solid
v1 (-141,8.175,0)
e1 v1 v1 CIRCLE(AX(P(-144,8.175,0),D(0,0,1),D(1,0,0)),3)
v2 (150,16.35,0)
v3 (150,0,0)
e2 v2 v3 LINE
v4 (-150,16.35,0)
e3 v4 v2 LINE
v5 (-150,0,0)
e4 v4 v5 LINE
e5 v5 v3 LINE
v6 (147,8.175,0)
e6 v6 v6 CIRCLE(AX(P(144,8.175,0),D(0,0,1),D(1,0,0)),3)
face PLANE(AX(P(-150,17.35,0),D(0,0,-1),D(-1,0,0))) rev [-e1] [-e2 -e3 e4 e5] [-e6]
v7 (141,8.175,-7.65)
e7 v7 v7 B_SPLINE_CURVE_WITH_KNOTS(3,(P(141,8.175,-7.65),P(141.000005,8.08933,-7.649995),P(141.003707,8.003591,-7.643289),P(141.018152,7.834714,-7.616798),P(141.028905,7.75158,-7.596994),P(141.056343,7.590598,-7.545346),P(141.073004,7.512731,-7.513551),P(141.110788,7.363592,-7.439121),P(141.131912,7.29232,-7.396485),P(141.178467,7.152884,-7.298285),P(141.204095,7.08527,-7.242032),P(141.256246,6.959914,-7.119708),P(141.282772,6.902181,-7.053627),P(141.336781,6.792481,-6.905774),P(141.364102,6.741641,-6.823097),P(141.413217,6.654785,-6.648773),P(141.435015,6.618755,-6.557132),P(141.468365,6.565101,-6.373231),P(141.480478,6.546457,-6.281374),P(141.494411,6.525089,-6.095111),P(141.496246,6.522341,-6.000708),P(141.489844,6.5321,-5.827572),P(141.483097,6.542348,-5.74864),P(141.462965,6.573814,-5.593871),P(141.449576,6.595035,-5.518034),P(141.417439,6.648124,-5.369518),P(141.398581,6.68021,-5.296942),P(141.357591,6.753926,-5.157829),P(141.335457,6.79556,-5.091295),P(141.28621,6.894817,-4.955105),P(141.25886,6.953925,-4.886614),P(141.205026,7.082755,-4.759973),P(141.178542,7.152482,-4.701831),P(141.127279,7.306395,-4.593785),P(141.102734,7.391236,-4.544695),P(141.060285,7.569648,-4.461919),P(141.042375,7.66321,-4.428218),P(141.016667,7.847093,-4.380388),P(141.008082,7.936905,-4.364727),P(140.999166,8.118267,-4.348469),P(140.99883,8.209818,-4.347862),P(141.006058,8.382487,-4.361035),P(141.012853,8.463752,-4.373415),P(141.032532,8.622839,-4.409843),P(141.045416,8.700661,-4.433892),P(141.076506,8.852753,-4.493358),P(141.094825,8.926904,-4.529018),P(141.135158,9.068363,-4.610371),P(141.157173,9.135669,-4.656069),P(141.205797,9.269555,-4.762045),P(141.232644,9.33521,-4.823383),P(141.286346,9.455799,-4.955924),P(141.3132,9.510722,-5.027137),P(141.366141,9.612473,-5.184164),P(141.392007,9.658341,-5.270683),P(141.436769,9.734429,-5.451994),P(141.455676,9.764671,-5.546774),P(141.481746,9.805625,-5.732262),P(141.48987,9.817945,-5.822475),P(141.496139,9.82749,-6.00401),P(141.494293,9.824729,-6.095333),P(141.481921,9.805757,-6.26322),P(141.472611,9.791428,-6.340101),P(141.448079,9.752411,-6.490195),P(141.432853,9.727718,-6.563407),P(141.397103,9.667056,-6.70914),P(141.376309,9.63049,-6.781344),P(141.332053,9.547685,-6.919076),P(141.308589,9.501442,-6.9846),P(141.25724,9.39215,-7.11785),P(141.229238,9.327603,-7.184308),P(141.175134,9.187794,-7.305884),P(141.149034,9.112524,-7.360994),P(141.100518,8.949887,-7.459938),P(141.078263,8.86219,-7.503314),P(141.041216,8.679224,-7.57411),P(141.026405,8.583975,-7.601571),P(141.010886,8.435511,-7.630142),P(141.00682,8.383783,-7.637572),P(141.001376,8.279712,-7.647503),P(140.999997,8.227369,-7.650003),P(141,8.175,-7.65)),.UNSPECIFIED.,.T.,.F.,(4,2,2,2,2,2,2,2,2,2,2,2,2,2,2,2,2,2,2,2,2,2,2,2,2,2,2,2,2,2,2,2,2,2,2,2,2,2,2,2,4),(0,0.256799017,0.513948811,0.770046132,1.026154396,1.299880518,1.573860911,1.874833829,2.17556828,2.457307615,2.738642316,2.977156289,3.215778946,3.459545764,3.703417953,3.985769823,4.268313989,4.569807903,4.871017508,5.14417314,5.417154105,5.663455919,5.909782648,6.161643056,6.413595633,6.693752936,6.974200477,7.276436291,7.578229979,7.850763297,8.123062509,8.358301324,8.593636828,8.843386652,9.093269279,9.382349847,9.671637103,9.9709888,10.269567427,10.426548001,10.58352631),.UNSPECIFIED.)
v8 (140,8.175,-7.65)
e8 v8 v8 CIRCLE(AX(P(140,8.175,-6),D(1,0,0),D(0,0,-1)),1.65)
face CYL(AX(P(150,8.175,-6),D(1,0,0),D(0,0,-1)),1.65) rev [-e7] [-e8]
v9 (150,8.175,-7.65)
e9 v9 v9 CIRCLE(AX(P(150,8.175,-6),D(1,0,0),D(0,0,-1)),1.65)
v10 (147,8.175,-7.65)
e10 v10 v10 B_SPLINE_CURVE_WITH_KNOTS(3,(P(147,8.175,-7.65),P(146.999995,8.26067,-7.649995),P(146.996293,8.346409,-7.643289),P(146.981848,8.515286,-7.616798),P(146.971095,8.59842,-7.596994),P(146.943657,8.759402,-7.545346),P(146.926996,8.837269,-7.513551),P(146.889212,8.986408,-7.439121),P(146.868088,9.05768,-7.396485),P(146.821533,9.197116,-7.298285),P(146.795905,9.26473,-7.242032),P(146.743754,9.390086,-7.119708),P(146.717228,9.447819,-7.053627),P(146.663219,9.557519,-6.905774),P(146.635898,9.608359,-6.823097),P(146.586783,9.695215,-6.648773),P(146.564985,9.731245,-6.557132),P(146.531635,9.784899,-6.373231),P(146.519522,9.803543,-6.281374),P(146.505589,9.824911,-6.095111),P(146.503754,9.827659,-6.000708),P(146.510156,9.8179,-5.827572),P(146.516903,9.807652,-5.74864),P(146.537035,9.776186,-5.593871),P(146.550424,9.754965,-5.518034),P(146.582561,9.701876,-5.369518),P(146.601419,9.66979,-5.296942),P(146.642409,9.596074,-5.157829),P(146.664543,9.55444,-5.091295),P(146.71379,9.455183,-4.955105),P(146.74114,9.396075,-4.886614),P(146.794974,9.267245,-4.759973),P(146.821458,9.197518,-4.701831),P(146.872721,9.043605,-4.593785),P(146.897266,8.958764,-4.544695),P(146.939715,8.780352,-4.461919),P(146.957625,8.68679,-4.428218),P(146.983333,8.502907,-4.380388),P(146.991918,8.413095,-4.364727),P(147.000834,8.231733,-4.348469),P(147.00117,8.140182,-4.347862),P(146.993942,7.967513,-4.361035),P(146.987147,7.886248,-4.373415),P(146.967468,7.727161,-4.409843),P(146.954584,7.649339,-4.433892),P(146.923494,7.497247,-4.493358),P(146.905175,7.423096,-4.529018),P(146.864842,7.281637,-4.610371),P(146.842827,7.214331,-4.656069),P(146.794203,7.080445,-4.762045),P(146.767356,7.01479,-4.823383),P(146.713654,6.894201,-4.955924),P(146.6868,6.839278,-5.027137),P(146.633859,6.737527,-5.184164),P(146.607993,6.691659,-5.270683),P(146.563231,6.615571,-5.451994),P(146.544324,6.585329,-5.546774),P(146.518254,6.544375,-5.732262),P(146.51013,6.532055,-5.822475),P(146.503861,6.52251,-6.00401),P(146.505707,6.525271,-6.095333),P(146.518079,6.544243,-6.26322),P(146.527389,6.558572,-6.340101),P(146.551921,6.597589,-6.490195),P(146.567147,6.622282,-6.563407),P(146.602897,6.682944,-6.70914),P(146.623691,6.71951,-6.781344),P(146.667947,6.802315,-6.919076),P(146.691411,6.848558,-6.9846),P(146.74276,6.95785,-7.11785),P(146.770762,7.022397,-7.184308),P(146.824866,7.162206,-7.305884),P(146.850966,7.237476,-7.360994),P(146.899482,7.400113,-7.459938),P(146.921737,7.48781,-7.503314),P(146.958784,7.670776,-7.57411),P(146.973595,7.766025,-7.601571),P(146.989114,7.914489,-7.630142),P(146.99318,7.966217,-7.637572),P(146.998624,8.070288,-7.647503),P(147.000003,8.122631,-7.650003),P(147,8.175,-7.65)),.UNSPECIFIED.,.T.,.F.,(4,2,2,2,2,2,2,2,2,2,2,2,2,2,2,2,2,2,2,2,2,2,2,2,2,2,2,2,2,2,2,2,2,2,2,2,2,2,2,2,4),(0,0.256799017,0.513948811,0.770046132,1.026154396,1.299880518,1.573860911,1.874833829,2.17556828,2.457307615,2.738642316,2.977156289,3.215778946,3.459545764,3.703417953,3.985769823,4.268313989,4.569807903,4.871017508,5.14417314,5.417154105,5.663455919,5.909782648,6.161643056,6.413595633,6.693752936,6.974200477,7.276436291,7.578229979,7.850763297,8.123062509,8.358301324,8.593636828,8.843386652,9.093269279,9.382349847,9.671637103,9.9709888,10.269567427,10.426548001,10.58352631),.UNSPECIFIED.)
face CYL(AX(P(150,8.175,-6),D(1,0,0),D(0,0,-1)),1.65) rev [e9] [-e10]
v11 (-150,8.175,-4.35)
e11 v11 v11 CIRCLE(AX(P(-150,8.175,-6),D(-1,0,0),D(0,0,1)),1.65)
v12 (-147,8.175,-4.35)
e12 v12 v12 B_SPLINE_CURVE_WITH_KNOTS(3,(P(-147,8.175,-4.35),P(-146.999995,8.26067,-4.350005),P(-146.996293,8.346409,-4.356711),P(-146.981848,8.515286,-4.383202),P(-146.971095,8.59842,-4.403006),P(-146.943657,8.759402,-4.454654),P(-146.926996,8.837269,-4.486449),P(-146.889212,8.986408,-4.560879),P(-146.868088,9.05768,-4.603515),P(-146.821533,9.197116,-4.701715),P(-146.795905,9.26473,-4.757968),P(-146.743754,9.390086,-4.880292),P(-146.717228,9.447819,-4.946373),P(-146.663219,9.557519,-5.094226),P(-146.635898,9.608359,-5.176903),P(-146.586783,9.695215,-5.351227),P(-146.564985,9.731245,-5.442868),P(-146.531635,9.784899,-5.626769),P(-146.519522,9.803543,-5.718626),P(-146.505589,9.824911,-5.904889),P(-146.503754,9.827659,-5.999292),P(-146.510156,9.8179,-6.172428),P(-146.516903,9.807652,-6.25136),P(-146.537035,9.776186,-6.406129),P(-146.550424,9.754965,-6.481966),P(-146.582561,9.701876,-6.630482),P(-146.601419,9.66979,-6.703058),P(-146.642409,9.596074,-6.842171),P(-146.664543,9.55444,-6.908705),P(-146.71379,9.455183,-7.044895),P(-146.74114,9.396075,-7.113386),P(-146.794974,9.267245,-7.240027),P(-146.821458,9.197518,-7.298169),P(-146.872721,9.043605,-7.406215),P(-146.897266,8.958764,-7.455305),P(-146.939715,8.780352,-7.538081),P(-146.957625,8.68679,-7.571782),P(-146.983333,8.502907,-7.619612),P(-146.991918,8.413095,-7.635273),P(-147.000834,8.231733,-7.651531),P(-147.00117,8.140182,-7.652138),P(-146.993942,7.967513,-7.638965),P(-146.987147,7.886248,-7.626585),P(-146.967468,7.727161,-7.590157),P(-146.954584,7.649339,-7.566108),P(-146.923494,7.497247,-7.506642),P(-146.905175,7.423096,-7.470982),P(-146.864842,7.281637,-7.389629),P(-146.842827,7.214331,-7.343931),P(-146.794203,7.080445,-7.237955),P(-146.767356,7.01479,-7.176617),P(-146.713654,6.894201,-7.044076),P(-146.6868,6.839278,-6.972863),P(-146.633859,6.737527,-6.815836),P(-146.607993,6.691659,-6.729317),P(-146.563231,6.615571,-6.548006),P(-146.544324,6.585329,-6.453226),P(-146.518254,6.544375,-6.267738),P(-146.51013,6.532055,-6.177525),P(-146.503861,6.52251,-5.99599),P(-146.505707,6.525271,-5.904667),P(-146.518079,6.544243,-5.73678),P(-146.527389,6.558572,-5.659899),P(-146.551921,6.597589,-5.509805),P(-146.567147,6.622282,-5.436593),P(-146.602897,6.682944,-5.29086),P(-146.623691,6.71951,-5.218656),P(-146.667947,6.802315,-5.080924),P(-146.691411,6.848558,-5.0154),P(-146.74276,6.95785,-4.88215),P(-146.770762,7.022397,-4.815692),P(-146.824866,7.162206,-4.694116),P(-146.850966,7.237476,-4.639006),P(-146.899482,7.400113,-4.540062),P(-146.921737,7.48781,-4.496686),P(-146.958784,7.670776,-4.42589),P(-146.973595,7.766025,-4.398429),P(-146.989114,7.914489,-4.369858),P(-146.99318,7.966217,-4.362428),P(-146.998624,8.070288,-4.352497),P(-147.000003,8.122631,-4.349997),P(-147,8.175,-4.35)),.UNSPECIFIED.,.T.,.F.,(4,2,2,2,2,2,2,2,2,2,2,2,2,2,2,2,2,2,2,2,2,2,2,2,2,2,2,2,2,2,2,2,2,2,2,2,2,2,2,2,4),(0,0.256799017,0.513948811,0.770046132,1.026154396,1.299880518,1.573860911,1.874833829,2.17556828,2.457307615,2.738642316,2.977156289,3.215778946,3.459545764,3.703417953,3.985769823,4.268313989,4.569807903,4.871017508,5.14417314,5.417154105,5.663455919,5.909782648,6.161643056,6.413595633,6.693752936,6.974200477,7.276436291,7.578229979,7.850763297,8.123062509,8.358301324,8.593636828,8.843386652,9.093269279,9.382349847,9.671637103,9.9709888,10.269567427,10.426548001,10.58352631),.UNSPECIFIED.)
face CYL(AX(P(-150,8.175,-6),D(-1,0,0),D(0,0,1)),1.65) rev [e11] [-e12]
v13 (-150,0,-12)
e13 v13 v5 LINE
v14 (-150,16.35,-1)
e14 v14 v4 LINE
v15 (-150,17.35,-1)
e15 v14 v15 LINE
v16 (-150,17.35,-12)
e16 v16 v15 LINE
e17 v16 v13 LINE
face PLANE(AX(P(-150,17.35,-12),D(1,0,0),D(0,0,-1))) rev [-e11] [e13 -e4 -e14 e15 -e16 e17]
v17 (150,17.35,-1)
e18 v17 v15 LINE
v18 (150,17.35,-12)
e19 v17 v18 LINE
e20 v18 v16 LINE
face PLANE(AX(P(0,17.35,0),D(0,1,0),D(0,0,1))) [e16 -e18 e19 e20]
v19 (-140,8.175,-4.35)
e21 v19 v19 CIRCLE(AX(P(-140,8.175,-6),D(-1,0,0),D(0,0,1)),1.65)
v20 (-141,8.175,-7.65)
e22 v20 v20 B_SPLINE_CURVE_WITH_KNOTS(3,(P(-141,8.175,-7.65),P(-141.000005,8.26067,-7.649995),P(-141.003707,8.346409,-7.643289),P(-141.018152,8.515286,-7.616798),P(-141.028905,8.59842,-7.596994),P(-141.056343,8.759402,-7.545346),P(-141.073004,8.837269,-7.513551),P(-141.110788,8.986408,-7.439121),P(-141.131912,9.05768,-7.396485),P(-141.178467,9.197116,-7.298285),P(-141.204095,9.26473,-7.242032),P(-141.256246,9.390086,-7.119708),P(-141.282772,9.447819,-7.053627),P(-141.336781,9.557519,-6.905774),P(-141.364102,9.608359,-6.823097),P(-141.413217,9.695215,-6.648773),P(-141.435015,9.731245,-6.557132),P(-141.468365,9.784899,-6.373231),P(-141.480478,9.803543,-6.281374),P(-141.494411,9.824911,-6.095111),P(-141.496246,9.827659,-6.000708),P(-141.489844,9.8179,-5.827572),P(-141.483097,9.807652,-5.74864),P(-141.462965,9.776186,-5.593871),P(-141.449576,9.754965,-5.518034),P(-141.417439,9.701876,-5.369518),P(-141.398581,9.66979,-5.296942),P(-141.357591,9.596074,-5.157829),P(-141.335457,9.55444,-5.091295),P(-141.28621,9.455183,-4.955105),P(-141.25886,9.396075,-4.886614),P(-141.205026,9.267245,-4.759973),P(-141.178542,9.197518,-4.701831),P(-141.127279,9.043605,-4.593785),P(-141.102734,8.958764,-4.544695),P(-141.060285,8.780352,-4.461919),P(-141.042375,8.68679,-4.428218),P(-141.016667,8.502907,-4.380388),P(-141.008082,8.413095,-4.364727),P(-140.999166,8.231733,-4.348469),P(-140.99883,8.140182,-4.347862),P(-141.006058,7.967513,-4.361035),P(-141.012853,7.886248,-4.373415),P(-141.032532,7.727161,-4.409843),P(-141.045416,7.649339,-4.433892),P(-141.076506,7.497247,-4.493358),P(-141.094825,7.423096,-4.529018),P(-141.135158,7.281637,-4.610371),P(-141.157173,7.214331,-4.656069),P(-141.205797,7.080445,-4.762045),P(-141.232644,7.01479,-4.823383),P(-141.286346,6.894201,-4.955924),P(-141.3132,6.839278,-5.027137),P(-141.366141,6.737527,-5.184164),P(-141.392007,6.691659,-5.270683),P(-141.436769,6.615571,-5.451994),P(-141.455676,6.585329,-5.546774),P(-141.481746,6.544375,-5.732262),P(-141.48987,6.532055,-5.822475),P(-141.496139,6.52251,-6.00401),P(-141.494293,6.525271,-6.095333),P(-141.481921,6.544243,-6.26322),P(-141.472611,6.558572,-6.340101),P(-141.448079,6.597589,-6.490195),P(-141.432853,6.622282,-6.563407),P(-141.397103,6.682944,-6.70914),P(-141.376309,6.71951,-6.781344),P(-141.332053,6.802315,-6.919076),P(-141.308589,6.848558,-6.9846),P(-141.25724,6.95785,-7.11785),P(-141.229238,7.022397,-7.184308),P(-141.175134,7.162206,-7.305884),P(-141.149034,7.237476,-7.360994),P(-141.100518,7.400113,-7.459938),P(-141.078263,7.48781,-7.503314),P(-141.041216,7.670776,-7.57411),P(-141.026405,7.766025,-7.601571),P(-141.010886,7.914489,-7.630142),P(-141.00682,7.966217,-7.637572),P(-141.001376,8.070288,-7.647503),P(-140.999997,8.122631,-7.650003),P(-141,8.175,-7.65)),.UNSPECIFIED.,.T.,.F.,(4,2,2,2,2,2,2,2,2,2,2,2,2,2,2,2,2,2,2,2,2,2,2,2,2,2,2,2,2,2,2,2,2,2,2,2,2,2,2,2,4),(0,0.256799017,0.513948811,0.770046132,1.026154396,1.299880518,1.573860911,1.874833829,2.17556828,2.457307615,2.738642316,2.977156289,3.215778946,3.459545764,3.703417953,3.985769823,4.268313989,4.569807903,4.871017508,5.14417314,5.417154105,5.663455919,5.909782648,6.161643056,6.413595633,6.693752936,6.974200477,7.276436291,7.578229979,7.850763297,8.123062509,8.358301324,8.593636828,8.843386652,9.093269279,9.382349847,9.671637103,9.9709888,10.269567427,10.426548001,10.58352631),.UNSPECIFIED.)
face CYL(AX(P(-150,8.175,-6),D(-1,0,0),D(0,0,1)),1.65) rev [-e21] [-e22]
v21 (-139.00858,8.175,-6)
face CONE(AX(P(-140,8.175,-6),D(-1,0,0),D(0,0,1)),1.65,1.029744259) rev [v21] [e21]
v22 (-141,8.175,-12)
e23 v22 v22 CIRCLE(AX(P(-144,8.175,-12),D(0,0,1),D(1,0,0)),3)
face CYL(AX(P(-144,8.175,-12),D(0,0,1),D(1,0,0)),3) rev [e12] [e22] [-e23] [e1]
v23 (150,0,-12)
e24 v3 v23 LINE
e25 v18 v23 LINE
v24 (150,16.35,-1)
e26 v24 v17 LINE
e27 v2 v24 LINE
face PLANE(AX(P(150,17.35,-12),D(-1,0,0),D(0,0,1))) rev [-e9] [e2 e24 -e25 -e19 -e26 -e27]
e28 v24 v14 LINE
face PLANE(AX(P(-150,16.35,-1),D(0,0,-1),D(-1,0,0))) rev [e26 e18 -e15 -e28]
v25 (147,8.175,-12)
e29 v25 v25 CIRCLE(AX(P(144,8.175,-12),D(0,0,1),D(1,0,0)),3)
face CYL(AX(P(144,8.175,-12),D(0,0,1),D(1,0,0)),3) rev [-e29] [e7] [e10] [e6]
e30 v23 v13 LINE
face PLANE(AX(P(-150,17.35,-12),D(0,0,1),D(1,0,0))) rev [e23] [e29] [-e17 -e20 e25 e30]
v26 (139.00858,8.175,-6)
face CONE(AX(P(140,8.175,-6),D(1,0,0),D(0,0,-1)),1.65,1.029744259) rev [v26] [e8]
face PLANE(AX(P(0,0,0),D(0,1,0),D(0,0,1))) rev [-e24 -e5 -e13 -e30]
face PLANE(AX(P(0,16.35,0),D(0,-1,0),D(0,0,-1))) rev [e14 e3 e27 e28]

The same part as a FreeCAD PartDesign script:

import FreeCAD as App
import Part
import Sketcher

V = App.Vector
Q = App.Units.Quantity


def add_polygon(sketch, points):
    """Adds a closed chain of lines whose ends are joined by coincident constraints."""
    first, n = sketch.GeometryCount, len(points)
    for a, b in zip(points, points[1:] + points[:1]):
        sketch.addGeometry(Part.LineSegment(App.Vector(*a, 0), App.Vector(*b, 0)), False)
    for i in range(n):
        sketch.addConstraint(Sketcher.Constraint("Coincident", first + i, 2, first + (i + 1) % n, 1))

doc = App.newDocument("Part")
body = doc.addObject("PartDesign::Body", "Body")

sketch1 = doc.addObject("Sketcher::SketchObject", "Sketch")
body.addObject(sketch1)
sketch1.AttachmentSupport = (doc.XZ_Plane, [""])
sketch1.MapMode = "FlatFace"
add_polygon(sketch1, [(-150, -12), (-150, 0), (150, 0), (150, -12)])
sketch1.addConstraint(Sketcher.Constraint("Vertical", 0))
sketch1.addConstraint(Sketcher.Constraint("Horizontal", 1))
sketch1.addConstraint(Sketcher.Constraint("Vertical", 2))
sketch1.addConstraint(Sketcher.Constraint("Horizontal", 3))
sketch1.addConstraint(Sketcher.Constraint("Symmetric", 0, 2, 1, 2, -1, 1))
sketch1.addConstraint(Sketcher.Constraint("DistanceX", 1, 1, 1, 2, Q("300 mm")))
sketch1.addConstraint(Sketcher.Constraint("DistanceY", 0, 1, 0, 2, Q("12 mm")))
pad1 = doc.addObject("PartDesign::Pad", "Pad")
body.addObject(pad1)
pad1.Profile = sketch1
pad1.Length = 17.35
pad1.Reversed = True

sketch2 = doc.addObject("Sketcher::SketchObject", "Sketch001")
body.addObject(sketch2)
sketch2.AttachmentSupport = (doc.XZ_Plane, [""])
sketch2.MapMode = "FlatFace"
sketch2.AttachmentOffset = App.Placement(V(0, 0, -17.35), App.Rotation())
add_polygon(sketch2, [(-150, -1), (-150, 0), (150, 0), (150, -1)])
sketch2.addConstraint(Sketcher.Constraint("Vertical", 0))
sketch2.addConstraint(Sketcher.Constraint("Horizontal", 1))
sketch2.addConstraint(Sketcher.Constraint("Vertical", 2))
sketch2.addConstraint(Sketcher.Constraint("Horizontal", 3))
sketch2.addConstraint(Sketcher.Constraint("Symmetric", 0, 2, 1, 2, -1, 1))
sketch2.addConstraint(Sketcher.Constraint("DistanceX", 1, 1, 1, 2, Q("300 mm")))
sketch2.addConstraint(Sketcher.Constraint("DistanceY", 0, 1, 0, 2, Q("1 mm")))
pocket1 = doc.addObject("PartDesign::Pocket", "Pocket")
body.addObject(pocket1)
pocket1.Profile = sketch2
pocket1.Length = 1
pocket1.Reversed = True

sketch3 = doc.addObject("Sketcher::SketchObject", "Sketch002")
body.addObject(sketch3)
sketch3.AttachmentSupport = (doc.XY_Plane, [""])
sketch3.MapMode = "FlatFace"
sketch3.addGeometry(Part.Circle(V(-144, 8.175, 0), V(0, 0, 1), 3), False)
sketch3.addGeometry(Part.Circle(V(144, 8.175, 0), V(0, 0, 1), 3), False)
sketch3.addConstraint(Sketcher.Constraint("Equal", 0, 1))
sketch3.addConstraint(Sketcher.Constraint("Symmetric", 0, 3, 1, 3, -2))
sketch3.addConstraint(Sketcher.Constraint("Diameter", 0, Q("6 mm")))
sketch3.addConstraint(Sketcher.Constraint("DistanceX", 0, 3, -1, 1, Q("144 mm")))
sketch3.addConstraint(Sketcher.Constraint("DistanceY", -1, 1, 0, 3, Q("8.175 mm")))
pocket2 = doc.addObject("PartDesign::Pocket", "Pocket001")
body.addObject(pocket2)
pocket2.Profile = sketch3
pocket2.Type = "ThroughAll"

sketch4 = doc.addObject("Sketcher::SketchObject", "Sketch003")
body.addObject(sketch4)
sketch4.AttachmentSupport = (doc.XZ_Plane, [""])
sketch4.MapMode = "FlatFace"
sketch4.AttachmentOffset = App.Placement(V(0, 0, -8.175), App.Rotation())
add_polygon(sketch4, [(139.00858, -6), (150, -6), (150, -7.65), (140, -7.65)])
sketch4.addGeometry(Part.LineSegment(V(150, -6, 0), V(139.00858, -6, 0)), True)
sketch4.addConstraint(Sketcher.Constraint("Horizontal", 0))
sketch4.addConstraint(Sketcher.Constraint("Vertical", 1))
sketch4.addConstraint(Sketcher.Constraint("Horizontal", 2))
sketch4.addConstraint(Sketcher.Constraint("Horizontal", 4))
sketch4.addConstraint(Sketcher.Constraint("Coincident", 4, 1, 0, 2))
sketch4.addConstraint(Sketcher.Constraint("Equal", 0, 4))
sketch4.addConstraint(Sketcher.Constraint("DistanceX", 2, 2, 2, 1, Q("10 mm")))
sketch4.addConstraint(Sketcher.Constraint("Angle", 3, Q("121 deg")))
sketch4.addConstraint(Sketcher.Constraint("DistanceX", -1, 1, 0, 2, Q("150 mm")))
sketch4.addConstraint(Sketcher.Constraint("DistanceY", 0, 2, -1, 1, Q("6 mm")))
sketch4.addConstraint(Sketcher.Constraint("DistanceY", 1, 2, 1, 1, Q("1.65 mm")))
groove = doc.addObject("PartDesign::Groove", "Groove")
body.addObject(groove)
groove.Profile = sketch4
groove.ReferenceAxis = (sketch4, ["Axis0"])
groove.Angle = 360
doc.recompute()

mirrored = doc.addObject("PartDesign::Mirrored", "Mirrored")
body.addObject(mirrored)
mirrored.Originals = [groove]
mirrored.MirrorPlane = (doc.YZ_Plane, [""])
body.Tip = mirrored

doc.recompute()
